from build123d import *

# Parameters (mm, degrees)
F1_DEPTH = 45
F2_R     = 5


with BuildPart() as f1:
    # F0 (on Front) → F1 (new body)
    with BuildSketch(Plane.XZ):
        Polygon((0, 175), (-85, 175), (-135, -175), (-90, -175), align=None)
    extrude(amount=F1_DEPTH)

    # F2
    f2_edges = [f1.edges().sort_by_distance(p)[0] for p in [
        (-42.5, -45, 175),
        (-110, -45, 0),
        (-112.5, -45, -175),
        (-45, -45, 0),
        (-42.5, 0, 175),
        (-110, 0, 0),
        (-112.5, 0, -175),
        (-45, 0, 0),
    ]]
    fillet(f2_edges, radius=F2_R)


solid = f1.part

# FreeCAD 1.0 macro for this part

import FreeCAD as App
import Part
import Sketcher
from FreeCAD import Vector
Q = App.Units.Quantity


def edges_at(feature, points):
    """Names of the edges that pass closest to the given points."""
    edges = feature.Shape.Edges
    near = lambda p: min(range(len(edges)), key=lambda i: edges[i].distToShape(Part.Vertex(*p))[0])
    return sorted({f"Edge{near(p) + 1}" for p in points})


def add_polygon(sketch, points):
    """Adds a closed chain of lines whose ends are joined by coincident constraints."""
    first, n = sketch.GeometryCount, len(points)
    for a, b in zip(points, points[1:] + points[:1]):
        sketch.addGeometry(Part.LineSegment(App.Vector(*a, 0), App.Vector(*b, 0)), False)
    for i in range(n):
        sketch.addConstraint(Sketcher.Constraint("Coincident", first + i, 2, first + (i + 1) % n, 1))

doc = App.newDocument("Part")
body = doc.addObject("PartDesign::Body", "Body")

sketch1 = body.newObject("Sketcher::SketchObject", "Sketch")
sketch1.AttachmentSupport = (doc.getObject("XZ_Plane"), [""])
sketch1.MapMode = "FlatFace"
add_polygon(sketch1, [(0, 175), (-85, 175), (-135, -175), (-90, -175)])
sketch1.addConstraint(Sketcher.Constraint("Horizontal", 0))
sketch1.addConstraint(Sketcher.Constraint("Horizontal", 2))
sketch1.addConstraint(Sketcher.Constraint("PointOnObject", 3, 2, -2))
sketch1.addConstraint(Sketcher.Constraint("DistanceX", 0, 2, 0, 1, Q("85 mm")))
sketch1.addConstraint(Sketcher.Constraint("DistanceX", 2, 1, 2, 2, Q("45 mm")))
sketch1.addConstraint(Sketcher.Constraint("DistanceY", -1, 1, 0, 2, Q("175 mm")))
sketch1.addConstraint(Sketcher.Constraint("DistanceX", 1, 2, -1, 1, Q("135 mm")))
sketch1.addConstraint(Sketcher.Constraint("DistanceY", 1, 2, -1, 1, Q("175 mm")))
pad1 = body.newObject("PartDesign::Pad", "Pad")
pad1.Profile = sketch1
pad1.Length = 45
doc.recompute()

fillet = body.newObject("PartDesign::Fillet", "Fillet")
fillet.Base = (pad1, edges_at(pad1, [
    (-42.5, -45, 175),
    (-110, -45, 0),
    (-112.5, -45, -175),
    (-45, -45, 0),
    (-42.5, 0, 175),
    (-110, 0, 0),
    (-112.5, 0, -175),
    (-45, 0, 0),
]))
fillet.Radius = 5

doc.recompute()
